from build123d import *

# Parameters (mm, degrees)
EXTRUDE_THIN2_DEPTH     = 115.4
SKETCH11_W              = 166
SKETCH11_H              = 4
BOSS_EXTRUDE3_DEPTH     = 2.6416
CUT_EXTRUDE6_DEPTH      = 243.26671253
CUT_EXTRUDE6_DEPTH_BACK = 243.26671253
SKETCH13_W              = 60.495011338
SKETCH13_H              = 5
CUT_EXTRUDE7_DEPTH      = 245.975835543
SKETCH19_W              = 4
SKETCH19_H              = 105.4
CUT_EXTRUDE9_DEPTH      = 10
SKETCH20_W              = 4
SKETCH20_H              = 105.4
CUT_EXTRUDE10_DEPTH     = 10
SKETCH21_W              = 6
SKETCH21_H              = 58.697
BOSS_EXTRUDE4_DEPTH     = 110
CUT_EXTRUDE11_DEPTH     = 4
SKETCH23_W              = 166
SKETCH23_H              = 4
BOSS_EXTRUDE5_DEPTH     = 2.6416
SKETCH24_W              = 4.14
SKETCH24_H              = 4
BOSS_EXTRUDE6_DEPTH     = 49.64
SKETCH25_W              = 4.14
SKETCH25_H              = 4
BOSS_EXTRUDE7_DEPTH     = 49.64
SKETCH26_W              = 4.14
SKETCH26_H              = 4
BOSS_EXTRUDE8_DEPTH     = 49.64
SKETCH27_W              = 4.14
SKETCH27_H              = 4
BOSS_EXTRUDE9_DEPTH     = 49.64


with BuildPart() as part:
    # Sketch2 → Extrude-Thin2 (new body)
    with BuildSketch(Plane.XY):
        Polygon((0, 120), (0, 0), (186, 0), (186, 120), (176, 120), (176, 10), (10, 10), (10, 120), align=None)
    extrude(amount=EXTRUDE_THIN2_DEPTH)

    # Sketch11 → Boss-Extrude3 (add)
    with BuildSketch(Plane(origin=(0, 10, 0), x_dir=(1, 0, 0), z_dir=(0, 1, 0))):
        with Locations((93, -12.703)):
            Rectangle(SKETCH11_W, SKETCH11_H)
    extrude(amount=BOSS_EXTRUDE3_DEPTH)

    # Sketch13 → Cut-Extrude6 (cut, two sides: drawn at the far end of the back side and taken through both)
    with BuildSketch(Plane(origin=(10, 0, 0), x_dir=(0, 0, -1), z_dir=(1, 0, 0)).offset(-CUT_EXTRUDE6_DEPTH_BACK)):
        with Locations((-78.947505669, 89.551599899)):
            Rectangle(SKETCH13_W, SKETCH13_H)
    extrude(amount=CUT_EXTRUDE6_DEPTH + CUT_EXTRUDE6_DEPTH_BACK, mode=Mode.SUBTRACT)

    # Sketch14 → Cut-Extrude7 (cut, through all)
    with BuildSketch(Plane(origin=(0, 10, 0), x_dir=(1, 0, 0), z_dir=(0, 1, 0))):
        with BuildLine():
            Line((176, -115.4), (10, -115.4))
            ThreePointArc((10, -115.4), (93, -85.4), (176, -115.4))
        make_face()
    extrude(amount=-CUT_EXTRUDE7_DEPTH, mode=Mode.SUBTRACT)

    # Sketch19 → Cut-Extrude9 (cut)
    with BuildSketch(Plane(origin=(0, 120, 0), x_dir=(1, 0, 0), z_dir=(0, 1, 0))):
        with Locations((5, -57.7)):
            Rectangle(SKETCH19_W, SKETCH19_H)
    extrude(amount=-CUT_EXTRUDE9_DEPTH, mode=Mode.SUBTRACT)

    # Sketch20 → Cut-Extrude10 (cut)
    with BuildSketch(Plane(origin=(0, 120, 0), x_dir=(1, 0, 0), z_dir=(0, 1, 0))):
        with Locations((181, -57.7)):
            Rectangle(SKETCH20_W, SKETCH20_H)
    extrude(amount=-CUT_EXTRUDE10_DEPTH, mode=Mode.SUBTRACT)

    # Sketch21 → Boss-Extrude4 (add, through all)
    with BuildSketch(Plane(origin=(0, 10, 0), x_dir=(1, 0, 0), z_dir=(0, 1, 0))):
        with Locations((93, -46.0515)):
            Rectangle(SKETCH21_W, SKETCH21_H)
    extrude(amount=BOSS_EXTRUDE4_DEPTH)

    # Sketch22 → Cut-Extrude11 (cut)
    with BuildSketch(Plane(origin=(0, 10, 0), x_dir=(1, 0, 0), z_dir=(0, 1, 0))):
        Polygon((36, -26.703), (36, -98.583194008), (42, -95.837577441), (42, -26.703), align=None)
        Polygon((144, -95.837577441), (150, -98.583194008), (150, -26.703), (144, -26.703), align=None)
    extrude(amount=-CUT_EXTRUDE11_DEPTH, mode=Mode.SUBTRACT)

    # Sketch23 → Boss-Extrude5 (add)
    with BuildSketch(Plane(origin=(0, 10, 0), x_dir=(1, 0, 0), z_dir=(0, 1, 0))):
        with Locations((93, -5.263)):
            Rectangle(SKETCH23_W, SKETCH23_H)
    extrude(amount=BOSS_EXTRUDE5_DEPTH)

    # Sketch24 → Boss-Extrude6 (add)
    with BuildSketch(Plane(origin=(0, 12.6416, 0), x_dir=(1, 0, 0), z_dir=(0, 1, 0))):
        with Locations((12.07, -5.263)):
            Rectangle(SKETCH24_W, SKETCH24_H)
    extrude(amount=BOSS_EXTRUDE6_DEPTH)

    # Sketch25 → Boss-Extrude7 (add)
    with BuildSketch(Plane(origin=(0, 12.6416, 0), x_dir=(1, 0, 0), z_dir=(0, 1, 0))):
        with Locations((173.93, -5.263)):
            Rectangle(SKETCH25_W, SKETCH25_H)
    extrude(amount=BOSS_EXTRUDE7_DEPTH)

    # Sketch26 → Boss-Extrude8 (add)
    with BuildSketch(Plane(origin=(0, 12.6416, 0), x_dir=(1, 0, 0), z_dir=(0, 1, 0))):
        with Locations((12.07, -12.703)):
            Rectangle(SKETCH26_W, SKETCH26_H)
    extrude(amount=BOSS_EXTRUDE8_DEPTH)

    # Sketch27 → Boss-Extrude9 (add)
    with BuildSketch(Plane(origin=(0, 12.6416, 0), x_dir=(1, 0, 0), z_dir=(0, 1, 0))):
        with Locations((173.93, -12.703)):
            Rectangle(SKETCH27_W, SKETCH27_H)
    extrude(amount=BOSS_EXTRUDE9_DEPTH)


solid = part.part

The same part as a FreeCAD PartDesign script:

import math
import FreeCAD as App
import Part
import Sketcher

V = App.Vector

doc = App.newDocument("Part")
params = doc.addObject("Spreadsheet::Sheet", "Params")
for row, (alias, value) in enumerate([
    ("sketch1_width", "186 mm"),
    ("sketch1_width2", "10 mm"),
    ("sketch1_height", "120 mm"),
    ("sketch1_height2", "110 mm"),
    ("pad1_length", "115.4 mm"),
    ("sketch2_width", "166 mm"),
    ("sketch2_height", "4 mm"),
    ("pad2_length", "2.6416 mm"),
    ("sketch3_width", "5 mm"),
    ("sketch4_width", "166 mm"),
    ("sketch5_width", "4 mm"),
    ("sketch5_height", "105.4 mm"),
    ("pocket3_length", "10 mm"),
    ("sketch6_width", "4 mm"),
    ("sketch6_height", "105.4 mm"),
    ("pocket4_length", "10 mm"),
    ("sketch7_width", "6 mm"),
    ("pad3_length", "110 mm"),
    ("sketch8_width", "6 mm"),
    ("pocket5_length", "4 mm"),
    ("sketch9_width", "166 mm"),
    ("sketch9_height", "4 mm"),
    ("pad4_length", "2.6416 mm"),
    ("sketch10_height", "4 mm"),
    ("sketch10_width", "4.14 mm"),
    ("pad5_length", "49.64 mm"),
    ("sketch11_height", "4 mm"),
    ("sketch11_width", "4.14 mm"),
    ("pad6_length", "49.64 mm"),
    ("sketch12_height", "4 mm"),
    ("sketch12_width", "4.14 mm"),
    ("pad7_length", "49.64 mm"),
    ("sketch13_height", "4 mm"),
    ("sketch13_width", "4.14 mm"),
    ("pad8_length", "49.64 mm"),
], start=1):
    params.set(f"A{row}", alias)
    params.set(f"B{row}", "=" + value)
    params.setAlias(f"B{row}", alias)

body = doc.addObject("PartDesign::Body", "Body")

# Sketch on XY plane
sketch1 = doc.addObject("Sketcher::SketchObject", "Sketch")
body.addObject(sketch1)
sketch1.AttachmentSupport = (doc.XY_Plane, [""])
sketch1.MapMode = "FlatFace"
sketch1.addGeometry([
    Part.LineSegment(V(0, 120, 0), V(0, 0, 0)),  # 0
    Part.LineSegment(V(0, 0, 0), V(186, 0, 0)),  # 1
    Part.LineSegment(V(186, 0, 0), V(186, 120, 0)),  # 2
    Part.LineSegment(V(186, 120, 0), V(176, 120, 0)),  # 3
    Part.LineSegment(V(176, 120, 0), V(176, 10, 0)),  # 4
    Part.LineSegment(V(176, 10, 0), V(10, 10, 0)),  # 5
    Part.LineSegment(V(10, 10, 0), V(10, 120, 0)),  # 6
    Part.LineSegment(V(10, 120, 0), V(0, 120, 0)),  # 7
], False)
sketch1.addConstraint([
    Sketcher.Constraint("Coincident", 0, 2, 1, 1),
    Sketcher.Constraint("Coincident", 1, 2, 2, 1),
    Sketcher.Constraint("Coincident", 2, 2, 3, 1),
    Sketcher.Constraint("Coincident", 3, 2, 4, 1),
    Sketcher.Constraint("Coincident", 4, 2, 5, 1),
    Sketcher.Constraint("Coincident", 5, 2, 6, 1),
    Sketcher.Constraint("Coincident", 6, 2, 7, 1),
    Sketcher.Constraint("Coincident", 7, 2, 0, 1),
    Sketcher.Constraint("Vertical", 0),
    Sketcher.Constraint("Horizontal", 1),
    Sketcher.Constraint("Vertical", 2),
    Sketcher.Constraint("Horizontal", 3),
    Sketcher.Constraint("Vertical", 4),
    Sketcher.Constraint("Horizontal", 5),
    Sketcher.Constraint("Vertical", 6),
    Sketcher.Constraint("Horizontal", 7),
    Sketcher.Constraint("Coincident", 0, 2, -1, 1),
    Sketcher.Constraint("Horizontal", 3, 2, 6, 2),
    Sketcher.Constraint("Equal", 3, 7),
    Sketcher.Constraint("DistanceX", 1, 1, 1, 2, 186.0),
    Sketcher.Constraint("DistanceX", 3, 2, 3, 1, 10.0),
    Sketcher.Constraint("DistanceY", 0, 2, 0, 1, 120.0),
    Sketcher.Constraint("DistanceY", 4, 2, 4, 1, 110.0),
])
sketch1.setExpression("Constraints[19]", "Params.sketch1_width")
sketch1.setExpression("Constraints[20]", "Params.sketch1_width2")
sketch1.setExpression("Constraints[21]", "Params.sketch1_height")
sketch1.setExpression("Constraints[22]", "Params.sketch1_height2")
pad1 = doc.addObject("PartDesign::Pad", "Pad")
body.addObject(pad1)
pad1.Profile = sketch1
pad1.setExpression("Length", "Params.pad1_length")

# Sketch on XZ plane
sketch2 = doc.addObject("Sketcher::SketchObject", "Sketch001")
body.addObject(sketch2)
sketch2.AttachmentSupport = (doc.XZ_Plane, [""])
sketch2.MapMode = "FlatFace"
sketch2.AttachmentOffset = App.Placement(V(0, 0, -10), App.Rotation())
sketch2.addGeometry([
    Part.LineSegment(V(10, 10.7, 0), V(10, 14.7, 0)),
    Part.LineSegment(V(10, 14.7, 0), V(176, 14.7, 0)),
    Part.LineSegment(V(176, 14.7, 0), V(176, 10.7, 0)),
    Part.LineSegment(V(176, 10.7, 0), V(10, 10.7, 0)),
], False)
sketch2.addConstraint([
    Sketcher.Constraint("Coincident", 0, 2, 1, 1),
    Sketcher.Constraint("Coincident", 1, 2, 2, 1),
    Sketcher.Constraint("Coincident", 2, 2, 3, 1),
    Sketcher.Constraint("Coincident", 3, 2, 0, 1),
    Sketcher.Constraint("Vertical", 0),
    Sketcher.Constraint("Horizontal", 1),
    Sketcher.Constraint("Vertical", 2),
    Sketcher.Constraint("Horizontal", 3),
    Sketcher.Constraint("DistanceX", 1, 1, 1, 2, 166.0),
    Sketcher.Constraint("DistanceY", 0, 1, 0, 2, 4.0),
    Sketcher.Constraint("DistanceX", -1, 1, 0, 2, 10.0),
    Sketcher.Constraint("DistanceY", -1, 1, 0, 2, 14.703),
])
sketch2.setExpression("Constraints[8]", "Params.sketch2_width")
sketch2.setExpression("Constraints[9]", "Params.sketch2_height")
pad2 = doc.addObject("PartDesign::Pad", "Pad001")
body.addObject(pad2)
pad2.Profile = sketch2
pad2.setExpression("Length", "Params.pad2_length")
pad2.Reversed = True

# Sketch on YZ plane
sketch3 = doc.addObject("Sketcher::SketchObject", "Sketch002")
body.addObject(sketch3)
sketch3.AttachmentSupport = (doc.YZ_Plane, [""])
sketch3.MapMode = "FlatFace"
sketch3.AttachmentOffset = App.Placement(V(0, 0, 10), App.Rotation())
sketch3.addGeometry([
    Part.LineSegment(V(92, 109, 0), V(87, 109, 0)),
    Part.LineSegment(V(87, 109, 0), V(87, 49, 0)),
    Part.LineSegment(V(87, 49, 0), V(92, 49, 0)),
    Part.LineSegment(V(92, 49, 0), V(92, 109, 0)),
], False)
sketch3.addConstraint([
    Sketcher.Constraint("Coincident", 0, 2, 1, 1),
    Sketcher.Constraint("Coincident", 1, 2, 2, 1),
    Sketcher.Constraint("Coincident", 2, 2, 3, 1),
    Sketcher.Constraint("Coincident", 3, 2, 0, 1),
    Sketcher.Constraint("Horizontal", 0),
    Sketcher.Constraint("Vertical", 1),
    Sketcher.Constraint("Horizontal", 2),
    Sketcher.Constraint("Vertical", 3),
    Sketcher.Constraint("DistanceX", 0, 2, 0, 1, 5.0),
    Sketcher.Constraint("DistanceY", -1, 1, 1, 2, 48.7),
    Sketcher.Constraint("DistanceY", 1, 2, 1, 1, 60.495011),
    Sketcher.Constraint("DistanceX", -1, 1, 0, 2, 87.0516),
])
sketch3.setExpression("Constraints[8]", "Params.sketch3_width")
pocket1 = doc.addObject("PartDesign::Pocket", "Pocket")
body.addObject(pocket1)
pocket1.Profile = sketch3
pocket1.Type = "ThroughAll"
pocket1.Midplane = True

# Sketch on XZ plane
sketch4 = doc.addObject("Sketcher::SketchObject", "Sketch003")
body.addObject(sketch4)
sketch4.AttachmentSupport = (doc.XZ_Plane, [""])
sketch4.MapMode = "FlatFace"
sketch4.AttachmentOffset = App.Placement(V(0, 0, -10), App.Rotation())
sketch4.addGeometry([
    Part.LineSegment(V(10, 115, 0), V(176, 115, 0)),
    Part.ArcOfCircle(Part.Circle(V(93, 215, 0), V(0, 0, 1), 130), math.radians(-130), math.radians(-50)),
], False)
sketch4.addConstraint([
    Sketcher.Constraint("Coincident", 0, 1, 1, 1),
    Sketcher.Constraint("Coincident", 1, 2, 0, 2),
    Sketcher.Constraint("Horizontal", 0),
    Sketcher.Constraint("DistanceX", 0, 1, 0, 2, 166.0),
    Sketcher.Constraint("DistanceX", -1, 1, 1, 3, 93.0),
    Sketcher.Constraint("DistanceY", -1, 1, 0, 1, 115.4),
    Sketcher.Constraint("Radius", 1, 129.816667),
])
sketch4.setExpression("Constraints[3]", "Params.sketch4_width")
pocket2 = doc.addObject("PartDesign::Pocket", "Pocket001")
body.addObject(pocket2)
pocket2.Profile = sketch4
pocket2.Type = "ThroughAll"
pocket2.Reversed = True

# Sketch on XZ plane
sketch5 = doc.addObject("Sketcher::SketchObject", "Sketch004")
body.addObject(sketch5)
sketch5.AttachmentSupport = (doc.XZ_Plane, [""])
sketch5.MapMode = "FlatFace"
sketch5.AttachmentOffset = App.Placement(V(0, 0, -120), App.Rotation())
sketch5.addGeometry([
    Part.LineSegment(V(3, 5, 0), V(3, 110.4, 0)),
    Part.LineSegment(V(3, 110.4, 0), V(7, 110.4, 0)),
    Part.LineSegment(V(7, 110.4, 0), V(7, 5, 0)),
    Part.LineSegment(V(7, 5, 0), V(3, 5, 0)),
], False)
sketch5.addConstraint([
    Sketcher.Constraint("Coincident", 0, 2, 1, 1),
    Sketcher.Constraint("Coincident", 1, 2, 2, 1),
    Sketcher.Constraint("Coincident", 2, 2, 3, 1),
    Sketcher.Constraint("Coincident", 3, 2, 0, 1),
    Sketcher.Constraint("Vertical", 0),
    Sketcher.Constraint("Horizontal", 1),
    Sketcher.Constraint("Vertical", 2),
    Sketcher.Constraint("Horizontal", 3),
    Sketcher.Constraint("DistanceX", 1, 1, 1, 2, 4.0),
    Sketcher.Constraint("DistanceY", 0, 1, 0, 2, 105.4),
    Sketcher.Constraint("DistanceX", -1, 1, 0, 2, 3.0),
    Sketcher.Constraint("DistanceY", -1, 1, 2, 2, 5.0),
])
sketch5.setExpression("Constraints[8]", "Params.sketch5_width")
sketch5.setExpression("Constraints[9]", "Params.sketch5_height")
pocket3 = doc.addObject("PartDesign::Pocket", "Pocket002")
body.addObject(pocket3)
pocket3.Profile = sketch5
pocket3.setExpression("Length", "Params.pocket3_length")
pocket3.Reversed = True

# Sketch on XZ plane
sketch6 = doc.addObject("Sketcher::SketchObject", "Sketch005")
body.addObject(sketch6)
sketch6.AttachmentSupport = (doc.XZ_Plane, [""])
sketch6.MapMode = "FlatFace"
sketch6.AttachmentOffset = App.Placement(V(0, 0, -120), App.Rotation())
sketch6.addGeometry([
    Part.LineSegment(V(179, 5, 0), V(179, 110.4, 0)),
    Part.LineSegment(V(179, 110.4, 0), V(183, 110.4, 0)),
    Part.LineSegment(V(183, 110.4, 0), V(183, 5, 0)),
    Part.LineSegment(V(183, 5, 0), V(179, 5, 0)),
], False)
sketch6.addConstraint([
    Sketcher.Constraint("Coincident", 0, 2, 1, 1),
    Sketcher.Constraint("Coincident", 1, 2, 2, 1),
    Sketcher.Constraint("Coincident", 2, 2, 3, 1),
    Sketcher.Constraint("Coincident", 3, 2, 0, 1),
    Sketcher.Constraint("Vertical", 0),
    Sketcher.Constraint("Horizontal", 1),
    Sketcher.Constraint("Vertical", 2),
    Sketcher.Constraint("Horizontal", 3),
    Sketcher.Constraint("DistanceX", 1, 1, 1, 2, 4.0),
    Sketcher.Constraint("DistanceY", 0, 1, 0, 2, 105.4),
    Sketcher.Constraint("DistanceX", -1, 1, 0, 2, 179.0),
    Sketcher.Constraint("DistanceY", -1, 1, 2, 2, 5.0),
])
sketch6.setExpression("Constraints[8]", "Params.sketch6_width")
sketch6.setExpression("Constraints[9]", "Params.sketch6_height")
pocket4 = doc.addObject("PartDesign::Pocket", "Pocket003")
body.addObject(pocket4)
pocket4.Profile = sketch6
pocket4.setExpression("Length", "Params.pocket4_length")
pocket4.Reversed = True

# Sketch on XZ plane
sketch7 = doc.addObject("Sketcher::SketchObject", "Sketch006")
body.addObject(sketch7)
sketch7.AttachmentSupport = (doc.XZ_Plane, [""])
sketch7.MapMode = "FlatFace"
sketch7.AttachmentOffset = App.Placement(V(0, 0, -10), App.Rotation())
sketch7.addGeometry([
    Part.LineSegment(V(90, 17, 0), V(90, 75, 0)),
    Part.LineSegment(V(90, 75, 0), V(96, 75, 0)),
    Part.LineSegment(V(96, 75, 0), V(96, 17, 0)),
    Part.LineSegment(V(96, 17, 0), V(90, 17, 0)),
], False)
sketch7.addConstraint([
    Sketcher.Constraint("Coincident", 0, 2, 1, 1),
    Sketcher.Constraint("Coincident", 1, 2, 2, 1),
    Sketcher.Constraint("Coincident", 2, 2, 3, 1),
    Sketcher.Constraint("Coincident", 3, 2, 0, 1),
    Sketcher.Constraint("Vertical", 0),
    Sketcher.Constraint("Horizontal", 1),
    Sketcher.Constraint("Vertical", 2),
    Sketcher.Constraint("Horizontal", 3),
    Sketcher.Constraint("DistanceX", 1, 1, 1, 2, 6.0),
    Sketcher.Constraint("DistanceX", -1, 1, 0, 2, 90.0),
    Sketcher.Constraint("DistanceY", -1, 1, 0, 2, 75.4),
    Sketcher.Constraint("DistanceY", 0, 1, 0, 2, 58.697),
])
sketch7.setExpression("Constraints[8]", "Params.sketch7_width")
pad3 = doc.addObject("PartDesign::Pad", "Pad002")
body.addObject(pad3)
pad3.Profile = sketch7
pad3.setExpression("Length", "Params.pad3_length")
pad3.Reversed = True

# Sketch on XZ plane
sketch8 = doc.addObject("Sketcher::SketchObject", "Sketch007")
body.addObject(sketch8)
sketch8.AttachmentSupport = (doc.XZ_Plane, [""])
sketch8.MapMode = "FlatFace"
sketch8.AttachmentOffset = App.Placement(V(0, 0, -10), App.Rotation())
sketch8.addGeometry([
    Part.LineSegment(V(36, 27, 0), V(36, 99, 0)),  # 0
    Part.LineSegment(V(36, 99, 0), V(42, 96, 0)),  # 1
    Part.LineSegment(V(42, 96, 0), V(42, 27, 0)),  # 2
    Part.LineSegment(V(42, 27, 0), V(36, 27, 0)),  # 3
    Part.LineSegment(V(144, 96, 0), V(150, 99, 0)),  # 4
    Part.LineSegment(V(150, 99, 0), V(150, 27, 0)),  # 5
    Part.LineSegment(V(150, 27, 0), V(144, 27, 0)),  # 6
    Part.LineSegment(V(144, 27, 0), V(144, 96, 0)),  # 7
], False)
sketch8.addConstraint([
    Sketcher.Constraint("Coincident", 0, 2, 1, 1),
    Sketcher.Constraint("Coincident", 1, 2, 2, 1),
    Sketcher.Constraint("Coincident", 2, 2, 3, 1),
    Sketcher.Constraint("Coincident", 3, 2, 0, 1),
    Sketcher.Constraint("Coincident", 4, 2, 5, 1),
    Sketcher.Constraint("Coincident", 5, 2, 6, 1),
    Sketcher.Constraint("Coincident", 6, 2, 7, 1),
    Sketcher.Constraint("Coincident", 7, 2, 4, 1),
    Sketcher.Constraint("Vertical", 0),
    Sketcher.Constraint("Vertical", 2),
    Sketcher.Constraint("Horizontal", 3),
    Sketcher.Constraint("Vertical", 5),
    Sketcher.Constraint("Horizontal", 6),
    Sketcher.Constraint("Vertical", 7),
    Sketcher.Constraint("Horizontal", 0, 2, 4, 2),
    Sketcher.Constraint("Horizontal", 3, 2, 5, 2),
    Sketcher.Constraint("Horizontal", 1, 2, 7, 2),
    Sketcher.Constraint("Equal", 3, 6),
    Sketcher.Constraint("DistanceX", 3, 2, 3, 1, 6.0),
    Sketcher.Constraint("DistanceX", -1, 1, 0, 2, 36.0),
    Sketcher.Constraint("DistanceX", -1, 1, 4, 2, 150.0),
    Sketcher.Constraint("DistanceY", -1, 1, 2, 2, 26.703),
    Sketcher.Constraint("DistanceY", 0, 1, 0, 2, 71.880194),
    Sketcher.Constraint("DistanceY", 2, 2, 2, 1, 69.134577),
])
sketch8.setExpression("Constraints[18]", "Params.sketch8_width")
pocket5 = doc.addObject("PartDesign::Pocket", "Pocket004")
body.addObject(pocket5)
pocket5.Profile = sketch8
pocket5.setExpression("Length", "Params.pocket5_length")
pocket5.Reversed = True

# Sketch on XZ plane
sketch9 = doc.addObject("Sketcher::SketchObject", "Sketch008")
body.addObject(sketch9)
sketch9.AttachmentSupport = (doc.XZ_Plane, [""])
sketch9.MapMode = "FlatFace"
sketch9.AttachmentOffset = App.Placement(V(0, 0, -10), App.Rotation())
sketch9.addGeometry([
    Part.LineSegment(V(10, 3.3, 0), V(10, 7.3, 0)),
    Part.LineSegment(V(10, 7.3, 0), V(176, 7.3, 0)),
    Part.LineSegment(V(176, 7.3, 0), V(176, 3.3, 0)),
    Part.LineSegment(V(176, 3.3, 0), V(10, 3.3, 0)),
], False)
sketch9.addConstraint([
    Sketcher.Constraint("Coincident", 0, 2, 1, 1),
    Sketcher.Constraint("Coincident", 1, 2, 2, 1),
    Sketcher.Constraint("Coincident", 2, 2, 3, 1),
    Sketcher.Constraint("Coincident", 3, 2, 0, 1),
    Sketcher.Constraint("Vertical", 0),
    Sketcher.Constraint("Horizontal", 1),
    Sketcher.Constraint("Vertical", 2),
    Sketcher.Constraint("Horizontal", 3),
    Sketcher.Constraint("DistanceX", 1, 1, 1, 2, 166.0),
    Sketcher.Constraint("DistanceY", 0, 1, 0, 2, 4.0),
    Sketcher.Constraint("DistanceX", -1, 1, 0, 2, 10.0),
    Sketcher.Constraint("DistanceY", -1, 1, 0, 2, 7.263),
])
sketch9.setExpression("Constraints[8]", "Params.sketch9_width")
sketch9.setExpression("Constraints[9]", "Params.sketch9_height")
pad4 = doc.addObject("PartDesign::Pad", "Pad003")
body.addObject(pad4)
pad4.Profile = sketch9
pad4.setExpression("Length", "Params.pad4_length")
pad4.Reversed = True

# Sketch on XZ plane
sketch10 = doc.addObject("Sketcher::SketchObject", "Sketch009")
body.addObject(sketch10)
sketch10.AttachmentSupport = (doc.XZ_Plane, [""])
sketch10.MapMode = "FlatFace"
sketch10.AttachmentOffset = App.Placement(V(0, 0, -12.6416), App.Rotation())
sketch10.addGeometry([
    Part.LineSegment(V(10, 3.3, 0), V(10, 7.3, 0)),
    Part.LineSegment(V(10, 7.3, 0), V(14.1, 7.3, 0)),
    Part.LineSegment(V(14.1, 7.3, 0), V(14.1, 3.3, 0)),
    Part.LineSegment(V(14.1, 3.3, 0), V(10, 3.3, 0)),
], False)
sketch10.addConstraint([
    Sketcher.Constraint("Coincident", 0, 2, 1, 1),
    Sketcher.Constraint("Coincident", 1, 2, 2, 1),
    Sketcher.Constraint("Coincident", 2, 2, 3, 1),
    Sketcher.Constraint("Coincident", 3, 2, 0, 1),
    Sketcher.Constraint("Vertical", 0),
    Sketcher.Constraint("Horizontal", 1),
    Sketcher.Constraint("Vertical", 2),
    Sketcher.Constraint("Horizontal", 3),
    Sketcher.Constraint("DistanceY", 0, 1, 0, 2, 4.0),
    Sketcher.Constraint("DistanceX", -1, 1, 0, 2, 10.0),
    Sketcher.Constraint("DistanceX", 1, 1, 1, 2, 4.14),
    Sketcher.Constraint("DistanceY", -1, 1, 0, 2, 7.263),
])
sketch10.setExpression("Constraints[8]", "Params.sketch10_height")
sketch10.setExpression("Constraints[10]", "Params.sketch10_width")
pad5 = doc.addObject("PartDesign::Pad", "Pad004")
body.addObject(pad5)
pad5.Profile = sketch10
pad5.setExpression("Length", "Params.pad5_length")
pad5.Reversed = True

# Sketch on XZ plane
sketch11 = doc.addObject("Sketcher::SketchObject", "Sketch010")
body.addObject(sketch11)
sketch11.AttachmentSupport = (doc.XZ_Plane, [""])
sketch11.MapMode = "FlatFace"
sketch11.AttachmentOffset = App.Placement(V(0, 0, -12.6416), App.Rotation())
sketch11.addGeometry([
    Part.LineSegment(V(171.9, 3.3, 0), V(171.9, 7.3, 0)),
    Part.LineSegment(V(171.9, 7.3, 0), V(176, 7.3, 0)),
    Part.LineSegment(V(176, 7.3, 0), V(176, 3.3, 0)),
    Part.LineSegment(V(176, 3.3, 0), V(171.9, 3.3, 0)),
], False)
sketch11.addConstraint([
    Sketcher.Constraint("Coincident", 0, 2, 1, 1),
    Sketcher.Constraint("Coincident", 1, 2, 2, 1),
    Sketcher.Constraint("Coincident", 2, 2, 3, 1),
    Sketcher.Constraint("Coincident", 3, 2, 0, 1),
    Sketcher.Constraint("Vertical", 0),
    Sketcher.Constraint("Horizontal", 1),
    Sketcher.Constraint("Vertical", 2),
    Sketcher.Constraint("Horizontal", 3),
    Sketcher.Constraint("DistanceY", 0, 1, 0, 2, 4.0),
    Sketcher.Constraint("DistanceX", -1, 1, 1, 2, 176.0),
    Sketcher.Constraint("DistanceX", 1, 1, 1, 2, 4.14),
    Sketcher.Constraint("DistanceY", -1, 1, 0, 2, 7.263),
])
sketch11.setExpression("Constraints[8]", "Params.sketch11_height")
sketch11.setExpression("Constraints[10]", "Params.sketch11_width")
pad6 = doc.addObject("PartDesign::Pad", "Pad005")
body.addObject(pad6)
pad6.Profile = sketch11
pad6.setExpression("Length", "Params.pad6_length")
pad6.Reversed = True

# Sketch on XZ plane
sketch12 = doc.addObject("Sketcher::SketchObject", "Sketch011")
body.addObject(sketch12)
sketch12.AttachmentSupport = (doc.XZ_Plane, [""])
sketch12.MapMode = "FlatFace"
sketch12.AttachmentOffset = App.Placement(V(0, 0, -12.6416), App.Rotation())
sketch12.addGeometry([
    Part.LineSegment(V(10, 10.7, 0), V(10, 14.7, 0)),
    Part.LineSegment(V(10, 14.7, 0), V(14.1, 14.7, 0)),
    Part.LineSegment(V(14.1, 14.7, 0), V(14.1, 10.7, 0)),
    Part.LineSegment(V(14.1, 10.7, 0), V(10, 10.7, 0)),
], False)
sketch12.addConstraint([
    Sketcher.Constraint("Coincident", 0, 2, 1, 1),
    Sketcher.Constraint("Coincident", 1, 2, 2, 1),
    Sketcher.Constraint("Coincident", 2, 2, 3, 1),
    Sketcher.Constraint("Coincident", 3, 2, 0, 1),
    Sketcher.Constraint("Vertical", 0),
    Sketcher.Constraint("Horizontal", 1),
    Sketcher.Constraint("Vertical", 2),
    Sketcher.Constraint("Horizontal", 3),
    Sketcher.Constraint("DistanceY", 0, 1, 0, 2, 4.0),
    Sketcher.Constraint("DistanceX", -1, 1, 0, 2, 10.0),
    Sketcher.Constraint("DistanceX", 1, 1, 1, 2, 4.14),
    Sketcher.Constraint("DistanceY", -1, 1, 0, 2, 14.703),
])
sketch12.setExpression("Constraints[8]", "Params.sketch12_height")
sketch12.setExpression("Constraints[10]", "Params.sketch12_width")
pad7 = doc.addObject("PartDesign::Pad", "Pad006")
body.addObject(pad7)
pad7.Profile = sketch12
pad7.setExpression("Length", "Params.pad7_length")
pad7.Reversed = True

# Sketch on XZ plane
sketch13 = doc.addObject("Sketcher::SketchObject", "Sketch012")
body.addObject(sketch13)
sketch13.AttachmentSupport = (doc.XZ_Plane, [""])
sketch13.MapMode = "FlatFace"
sketch13.AttachmentOffset = App.Placement(V(0, 0, -12.6416), App.Rotation())
sketch13.addGeometry([
    Part.LineSegment(V(171.9, 10.7, 0), V(171.9, 14.7, 0)),
    Part.LineSegment(V(171.9, 14.7, 0), V(176, 14.7, 0)),
    Part.LineSegment(V(176, 14.7, 0), V(176, 10.7, 0)),
    Part.LineSegment(V(176, 10.7, 0), V(171.9, 10.7, 0)),
], False)
sketch13.addConstraint([
    Sketcher.Constraint("Coincident", 0, 2, 1, 1),
    Sketcher.Constraint("Coincident", 1, 2, 2, 1),
    Sketcher.Constraint("Coincident", 2, 2, 3, 1),
    Sketcher.Constraint("Coincident", 3, 2, 0, 1),
    Sketcher.Constraint("Vertical", 0),
    Sketcher.Constraint("Horizontal", 1),
    Sketcher.Constraint("Vertical", 2),
    Sketcher.Constraint("Horizontal", 3),
    Sketcher.Constraint("DistanceY", 0, 1, 0, 2, 4.0),
    Sketcher.Constraint("DistanceX", -1, 1, 1, 2, 176.0),
    Sketcher.Constraint("DistanceX", 1, 1, 1, 2, 4.14),
    Sketcher.Constraint("DistanceY", -1, 1, 0, 2, 14.703),
])
sketch13.setExpression("Constraints[8]", "Params.sketch13_height")
sketch13.setExpression("Constraints[10]", "Params.sketch13_width")
pad8 = doc.addObject("PartDesign::Pad", "Pad007")
body.addObject(pad8)
pad8.Profile = sketch13
pad8.setExpression("Length", "Params.pad8_length")
pad8.Reversed = True

doc.recompute()
